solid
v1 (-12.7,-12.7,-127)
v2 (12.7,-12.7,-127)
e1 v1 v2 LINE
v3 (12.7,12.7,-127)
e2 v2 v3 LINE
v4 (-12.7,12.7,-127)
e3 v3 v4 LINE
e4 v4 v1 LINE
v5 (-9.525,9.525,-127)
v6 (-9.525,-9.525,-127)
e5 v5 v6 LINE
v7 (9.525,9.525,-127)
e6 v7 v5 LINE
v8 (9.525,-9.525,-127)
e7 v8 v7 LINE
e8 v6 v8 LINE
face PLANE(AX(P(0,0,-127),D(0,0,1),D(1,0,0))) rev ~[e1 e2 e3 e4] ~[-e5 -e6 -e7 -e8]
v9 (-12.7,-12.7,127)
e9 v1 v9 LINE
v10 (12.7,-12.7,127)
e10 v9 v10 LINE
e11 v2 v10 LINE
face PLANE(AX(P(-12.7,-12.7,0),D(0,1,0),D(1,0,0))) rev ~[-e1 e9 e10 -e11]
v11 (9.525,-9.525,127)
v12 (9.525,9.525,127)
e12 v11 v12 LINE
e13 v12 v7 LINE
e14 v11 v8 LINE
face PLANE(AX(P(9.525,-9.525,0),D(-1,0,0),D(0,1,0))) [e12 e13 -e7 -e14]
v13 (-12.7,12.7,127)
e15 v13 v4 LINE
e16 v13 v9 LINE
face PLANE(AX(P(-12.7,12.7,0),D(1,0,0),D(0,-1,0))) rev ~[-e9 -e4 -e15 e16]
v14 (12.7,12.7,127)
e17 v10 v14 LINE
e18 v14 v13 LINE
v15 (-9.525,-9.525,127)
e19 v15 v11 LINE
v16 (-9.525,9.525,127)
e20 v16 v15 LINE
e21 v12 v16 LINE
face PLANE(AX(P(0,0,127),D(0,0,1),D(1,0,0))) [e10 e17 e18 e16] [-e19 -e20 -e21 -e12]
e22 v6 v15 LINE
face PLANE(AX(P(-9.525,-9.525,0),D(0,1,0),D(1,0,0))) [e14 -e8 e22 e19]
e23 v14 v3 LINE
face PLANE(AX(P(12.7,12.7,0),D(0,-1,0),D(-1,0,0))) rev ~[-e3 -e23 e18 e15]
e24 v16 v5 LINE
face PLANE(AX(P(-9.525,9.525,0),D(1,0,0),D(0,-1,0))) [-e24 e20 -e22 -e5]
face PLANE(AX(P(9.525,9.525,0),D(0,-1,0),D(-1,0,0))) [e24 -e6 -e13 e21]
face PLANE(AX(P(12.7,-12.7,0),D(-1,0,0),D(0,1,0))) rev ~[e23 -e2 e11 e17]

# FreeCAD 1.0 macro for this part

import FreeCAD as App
import Part
import Sketcher

V = App.Vector
Q = App.Units.Quantity

doc = App.newDocument("Part")
body = doc.addObject("PartDesign::Body", "Body")

sketch1 = body.newObject("Sketcher::SketchObject", "Sketch")
sketch1.AttachmentSupport = (doc.getObject("XY_Plane"), [""])
sketch1.MapMode = "FlatFace"
sketch1.addGeometry([
    Part.LineSegment(V(-13, 13, 0), V(-13, -13, 0)),
    Part.LineSegment(V(-13, -13, 0), V(13, -13, 0)),
    Part.LineSegment(V(13, -13, 0), V(13, 13, 0)),
    Part.LineSegment(V(13, 13, 0), V(-13, 13, 0)),
    Part.LineSegment(V(10, -10, 0), V(-10, -10, 0)),
    Part.LineSegment(V(-10, -10, 0), V(-10, 10, 0)),
    Part.LineSegment(V(-10, 10, 0), V(10, 10, 0)),
    Part.LineSegment(V(10, 10, 0), V(10, -10, 0)),
], False)
sketch1.addConstraint([
    Sketcher.Constraint("Coincident", 0, 2, 1, 1),
    Sketcher.Constraint("Coincident", 1, 2, 2, 1),
    Sketcher.Constraint("Coincident", 2, 2, 3, 1),
    Sketcher.Constraint("Coincident", 3, 2, 0, 1),
    Sketcher.Constraint("Coincident", 4, 2, 5, 1),
    Sketcher.Constraint("Coincident", 5, 2, 6, 1),
    Sketcher.Constraint("Coincident", 6, 2, 7, 1),
    Sketcher.Constraint("Coincident", 7, 2, 4, 1),
    Sketcher.Constraint("Vertical", 0),
    Sketcher.Constraint("Horizontal", 1),
    Sketcher.Constraint("Vertical", 2),
    Sketcher.Constraint("Horizontal", 3),
    Sketcher.Constraint("Horizontal", 4),
    Sketcher.Constraint("Vertical", 5),
    Sketcher.Constraint("Horizontal", 6),
    Sketcher.Constraint("Vertical", 7),
    Sketcher.Constraint("Symmetric", 0, 2, 2, 2, -1, 1),
    Sketcher.Constraint("Symmetric", 4, 2, 6, 2, -1, 1),
    Sketcher.Constraint("Equal", 3, 0),
    Sketcher.Constraint("Equal", 6, 5),
    Sketcher.Constraint("DistanceX", 1, 1, 1, 2, Q("1 in")),
    Sketcher.Constraint("DistanceX", 0, 2, 4, 2, Q("0.125 in")),
])
pad1 = body.newObject("PartDesign::Pad", "Pad")
pad1.Profile = sketch1
pad1.Length = Q("10 in")
pad1.Midplane = True

doc.recompute()
